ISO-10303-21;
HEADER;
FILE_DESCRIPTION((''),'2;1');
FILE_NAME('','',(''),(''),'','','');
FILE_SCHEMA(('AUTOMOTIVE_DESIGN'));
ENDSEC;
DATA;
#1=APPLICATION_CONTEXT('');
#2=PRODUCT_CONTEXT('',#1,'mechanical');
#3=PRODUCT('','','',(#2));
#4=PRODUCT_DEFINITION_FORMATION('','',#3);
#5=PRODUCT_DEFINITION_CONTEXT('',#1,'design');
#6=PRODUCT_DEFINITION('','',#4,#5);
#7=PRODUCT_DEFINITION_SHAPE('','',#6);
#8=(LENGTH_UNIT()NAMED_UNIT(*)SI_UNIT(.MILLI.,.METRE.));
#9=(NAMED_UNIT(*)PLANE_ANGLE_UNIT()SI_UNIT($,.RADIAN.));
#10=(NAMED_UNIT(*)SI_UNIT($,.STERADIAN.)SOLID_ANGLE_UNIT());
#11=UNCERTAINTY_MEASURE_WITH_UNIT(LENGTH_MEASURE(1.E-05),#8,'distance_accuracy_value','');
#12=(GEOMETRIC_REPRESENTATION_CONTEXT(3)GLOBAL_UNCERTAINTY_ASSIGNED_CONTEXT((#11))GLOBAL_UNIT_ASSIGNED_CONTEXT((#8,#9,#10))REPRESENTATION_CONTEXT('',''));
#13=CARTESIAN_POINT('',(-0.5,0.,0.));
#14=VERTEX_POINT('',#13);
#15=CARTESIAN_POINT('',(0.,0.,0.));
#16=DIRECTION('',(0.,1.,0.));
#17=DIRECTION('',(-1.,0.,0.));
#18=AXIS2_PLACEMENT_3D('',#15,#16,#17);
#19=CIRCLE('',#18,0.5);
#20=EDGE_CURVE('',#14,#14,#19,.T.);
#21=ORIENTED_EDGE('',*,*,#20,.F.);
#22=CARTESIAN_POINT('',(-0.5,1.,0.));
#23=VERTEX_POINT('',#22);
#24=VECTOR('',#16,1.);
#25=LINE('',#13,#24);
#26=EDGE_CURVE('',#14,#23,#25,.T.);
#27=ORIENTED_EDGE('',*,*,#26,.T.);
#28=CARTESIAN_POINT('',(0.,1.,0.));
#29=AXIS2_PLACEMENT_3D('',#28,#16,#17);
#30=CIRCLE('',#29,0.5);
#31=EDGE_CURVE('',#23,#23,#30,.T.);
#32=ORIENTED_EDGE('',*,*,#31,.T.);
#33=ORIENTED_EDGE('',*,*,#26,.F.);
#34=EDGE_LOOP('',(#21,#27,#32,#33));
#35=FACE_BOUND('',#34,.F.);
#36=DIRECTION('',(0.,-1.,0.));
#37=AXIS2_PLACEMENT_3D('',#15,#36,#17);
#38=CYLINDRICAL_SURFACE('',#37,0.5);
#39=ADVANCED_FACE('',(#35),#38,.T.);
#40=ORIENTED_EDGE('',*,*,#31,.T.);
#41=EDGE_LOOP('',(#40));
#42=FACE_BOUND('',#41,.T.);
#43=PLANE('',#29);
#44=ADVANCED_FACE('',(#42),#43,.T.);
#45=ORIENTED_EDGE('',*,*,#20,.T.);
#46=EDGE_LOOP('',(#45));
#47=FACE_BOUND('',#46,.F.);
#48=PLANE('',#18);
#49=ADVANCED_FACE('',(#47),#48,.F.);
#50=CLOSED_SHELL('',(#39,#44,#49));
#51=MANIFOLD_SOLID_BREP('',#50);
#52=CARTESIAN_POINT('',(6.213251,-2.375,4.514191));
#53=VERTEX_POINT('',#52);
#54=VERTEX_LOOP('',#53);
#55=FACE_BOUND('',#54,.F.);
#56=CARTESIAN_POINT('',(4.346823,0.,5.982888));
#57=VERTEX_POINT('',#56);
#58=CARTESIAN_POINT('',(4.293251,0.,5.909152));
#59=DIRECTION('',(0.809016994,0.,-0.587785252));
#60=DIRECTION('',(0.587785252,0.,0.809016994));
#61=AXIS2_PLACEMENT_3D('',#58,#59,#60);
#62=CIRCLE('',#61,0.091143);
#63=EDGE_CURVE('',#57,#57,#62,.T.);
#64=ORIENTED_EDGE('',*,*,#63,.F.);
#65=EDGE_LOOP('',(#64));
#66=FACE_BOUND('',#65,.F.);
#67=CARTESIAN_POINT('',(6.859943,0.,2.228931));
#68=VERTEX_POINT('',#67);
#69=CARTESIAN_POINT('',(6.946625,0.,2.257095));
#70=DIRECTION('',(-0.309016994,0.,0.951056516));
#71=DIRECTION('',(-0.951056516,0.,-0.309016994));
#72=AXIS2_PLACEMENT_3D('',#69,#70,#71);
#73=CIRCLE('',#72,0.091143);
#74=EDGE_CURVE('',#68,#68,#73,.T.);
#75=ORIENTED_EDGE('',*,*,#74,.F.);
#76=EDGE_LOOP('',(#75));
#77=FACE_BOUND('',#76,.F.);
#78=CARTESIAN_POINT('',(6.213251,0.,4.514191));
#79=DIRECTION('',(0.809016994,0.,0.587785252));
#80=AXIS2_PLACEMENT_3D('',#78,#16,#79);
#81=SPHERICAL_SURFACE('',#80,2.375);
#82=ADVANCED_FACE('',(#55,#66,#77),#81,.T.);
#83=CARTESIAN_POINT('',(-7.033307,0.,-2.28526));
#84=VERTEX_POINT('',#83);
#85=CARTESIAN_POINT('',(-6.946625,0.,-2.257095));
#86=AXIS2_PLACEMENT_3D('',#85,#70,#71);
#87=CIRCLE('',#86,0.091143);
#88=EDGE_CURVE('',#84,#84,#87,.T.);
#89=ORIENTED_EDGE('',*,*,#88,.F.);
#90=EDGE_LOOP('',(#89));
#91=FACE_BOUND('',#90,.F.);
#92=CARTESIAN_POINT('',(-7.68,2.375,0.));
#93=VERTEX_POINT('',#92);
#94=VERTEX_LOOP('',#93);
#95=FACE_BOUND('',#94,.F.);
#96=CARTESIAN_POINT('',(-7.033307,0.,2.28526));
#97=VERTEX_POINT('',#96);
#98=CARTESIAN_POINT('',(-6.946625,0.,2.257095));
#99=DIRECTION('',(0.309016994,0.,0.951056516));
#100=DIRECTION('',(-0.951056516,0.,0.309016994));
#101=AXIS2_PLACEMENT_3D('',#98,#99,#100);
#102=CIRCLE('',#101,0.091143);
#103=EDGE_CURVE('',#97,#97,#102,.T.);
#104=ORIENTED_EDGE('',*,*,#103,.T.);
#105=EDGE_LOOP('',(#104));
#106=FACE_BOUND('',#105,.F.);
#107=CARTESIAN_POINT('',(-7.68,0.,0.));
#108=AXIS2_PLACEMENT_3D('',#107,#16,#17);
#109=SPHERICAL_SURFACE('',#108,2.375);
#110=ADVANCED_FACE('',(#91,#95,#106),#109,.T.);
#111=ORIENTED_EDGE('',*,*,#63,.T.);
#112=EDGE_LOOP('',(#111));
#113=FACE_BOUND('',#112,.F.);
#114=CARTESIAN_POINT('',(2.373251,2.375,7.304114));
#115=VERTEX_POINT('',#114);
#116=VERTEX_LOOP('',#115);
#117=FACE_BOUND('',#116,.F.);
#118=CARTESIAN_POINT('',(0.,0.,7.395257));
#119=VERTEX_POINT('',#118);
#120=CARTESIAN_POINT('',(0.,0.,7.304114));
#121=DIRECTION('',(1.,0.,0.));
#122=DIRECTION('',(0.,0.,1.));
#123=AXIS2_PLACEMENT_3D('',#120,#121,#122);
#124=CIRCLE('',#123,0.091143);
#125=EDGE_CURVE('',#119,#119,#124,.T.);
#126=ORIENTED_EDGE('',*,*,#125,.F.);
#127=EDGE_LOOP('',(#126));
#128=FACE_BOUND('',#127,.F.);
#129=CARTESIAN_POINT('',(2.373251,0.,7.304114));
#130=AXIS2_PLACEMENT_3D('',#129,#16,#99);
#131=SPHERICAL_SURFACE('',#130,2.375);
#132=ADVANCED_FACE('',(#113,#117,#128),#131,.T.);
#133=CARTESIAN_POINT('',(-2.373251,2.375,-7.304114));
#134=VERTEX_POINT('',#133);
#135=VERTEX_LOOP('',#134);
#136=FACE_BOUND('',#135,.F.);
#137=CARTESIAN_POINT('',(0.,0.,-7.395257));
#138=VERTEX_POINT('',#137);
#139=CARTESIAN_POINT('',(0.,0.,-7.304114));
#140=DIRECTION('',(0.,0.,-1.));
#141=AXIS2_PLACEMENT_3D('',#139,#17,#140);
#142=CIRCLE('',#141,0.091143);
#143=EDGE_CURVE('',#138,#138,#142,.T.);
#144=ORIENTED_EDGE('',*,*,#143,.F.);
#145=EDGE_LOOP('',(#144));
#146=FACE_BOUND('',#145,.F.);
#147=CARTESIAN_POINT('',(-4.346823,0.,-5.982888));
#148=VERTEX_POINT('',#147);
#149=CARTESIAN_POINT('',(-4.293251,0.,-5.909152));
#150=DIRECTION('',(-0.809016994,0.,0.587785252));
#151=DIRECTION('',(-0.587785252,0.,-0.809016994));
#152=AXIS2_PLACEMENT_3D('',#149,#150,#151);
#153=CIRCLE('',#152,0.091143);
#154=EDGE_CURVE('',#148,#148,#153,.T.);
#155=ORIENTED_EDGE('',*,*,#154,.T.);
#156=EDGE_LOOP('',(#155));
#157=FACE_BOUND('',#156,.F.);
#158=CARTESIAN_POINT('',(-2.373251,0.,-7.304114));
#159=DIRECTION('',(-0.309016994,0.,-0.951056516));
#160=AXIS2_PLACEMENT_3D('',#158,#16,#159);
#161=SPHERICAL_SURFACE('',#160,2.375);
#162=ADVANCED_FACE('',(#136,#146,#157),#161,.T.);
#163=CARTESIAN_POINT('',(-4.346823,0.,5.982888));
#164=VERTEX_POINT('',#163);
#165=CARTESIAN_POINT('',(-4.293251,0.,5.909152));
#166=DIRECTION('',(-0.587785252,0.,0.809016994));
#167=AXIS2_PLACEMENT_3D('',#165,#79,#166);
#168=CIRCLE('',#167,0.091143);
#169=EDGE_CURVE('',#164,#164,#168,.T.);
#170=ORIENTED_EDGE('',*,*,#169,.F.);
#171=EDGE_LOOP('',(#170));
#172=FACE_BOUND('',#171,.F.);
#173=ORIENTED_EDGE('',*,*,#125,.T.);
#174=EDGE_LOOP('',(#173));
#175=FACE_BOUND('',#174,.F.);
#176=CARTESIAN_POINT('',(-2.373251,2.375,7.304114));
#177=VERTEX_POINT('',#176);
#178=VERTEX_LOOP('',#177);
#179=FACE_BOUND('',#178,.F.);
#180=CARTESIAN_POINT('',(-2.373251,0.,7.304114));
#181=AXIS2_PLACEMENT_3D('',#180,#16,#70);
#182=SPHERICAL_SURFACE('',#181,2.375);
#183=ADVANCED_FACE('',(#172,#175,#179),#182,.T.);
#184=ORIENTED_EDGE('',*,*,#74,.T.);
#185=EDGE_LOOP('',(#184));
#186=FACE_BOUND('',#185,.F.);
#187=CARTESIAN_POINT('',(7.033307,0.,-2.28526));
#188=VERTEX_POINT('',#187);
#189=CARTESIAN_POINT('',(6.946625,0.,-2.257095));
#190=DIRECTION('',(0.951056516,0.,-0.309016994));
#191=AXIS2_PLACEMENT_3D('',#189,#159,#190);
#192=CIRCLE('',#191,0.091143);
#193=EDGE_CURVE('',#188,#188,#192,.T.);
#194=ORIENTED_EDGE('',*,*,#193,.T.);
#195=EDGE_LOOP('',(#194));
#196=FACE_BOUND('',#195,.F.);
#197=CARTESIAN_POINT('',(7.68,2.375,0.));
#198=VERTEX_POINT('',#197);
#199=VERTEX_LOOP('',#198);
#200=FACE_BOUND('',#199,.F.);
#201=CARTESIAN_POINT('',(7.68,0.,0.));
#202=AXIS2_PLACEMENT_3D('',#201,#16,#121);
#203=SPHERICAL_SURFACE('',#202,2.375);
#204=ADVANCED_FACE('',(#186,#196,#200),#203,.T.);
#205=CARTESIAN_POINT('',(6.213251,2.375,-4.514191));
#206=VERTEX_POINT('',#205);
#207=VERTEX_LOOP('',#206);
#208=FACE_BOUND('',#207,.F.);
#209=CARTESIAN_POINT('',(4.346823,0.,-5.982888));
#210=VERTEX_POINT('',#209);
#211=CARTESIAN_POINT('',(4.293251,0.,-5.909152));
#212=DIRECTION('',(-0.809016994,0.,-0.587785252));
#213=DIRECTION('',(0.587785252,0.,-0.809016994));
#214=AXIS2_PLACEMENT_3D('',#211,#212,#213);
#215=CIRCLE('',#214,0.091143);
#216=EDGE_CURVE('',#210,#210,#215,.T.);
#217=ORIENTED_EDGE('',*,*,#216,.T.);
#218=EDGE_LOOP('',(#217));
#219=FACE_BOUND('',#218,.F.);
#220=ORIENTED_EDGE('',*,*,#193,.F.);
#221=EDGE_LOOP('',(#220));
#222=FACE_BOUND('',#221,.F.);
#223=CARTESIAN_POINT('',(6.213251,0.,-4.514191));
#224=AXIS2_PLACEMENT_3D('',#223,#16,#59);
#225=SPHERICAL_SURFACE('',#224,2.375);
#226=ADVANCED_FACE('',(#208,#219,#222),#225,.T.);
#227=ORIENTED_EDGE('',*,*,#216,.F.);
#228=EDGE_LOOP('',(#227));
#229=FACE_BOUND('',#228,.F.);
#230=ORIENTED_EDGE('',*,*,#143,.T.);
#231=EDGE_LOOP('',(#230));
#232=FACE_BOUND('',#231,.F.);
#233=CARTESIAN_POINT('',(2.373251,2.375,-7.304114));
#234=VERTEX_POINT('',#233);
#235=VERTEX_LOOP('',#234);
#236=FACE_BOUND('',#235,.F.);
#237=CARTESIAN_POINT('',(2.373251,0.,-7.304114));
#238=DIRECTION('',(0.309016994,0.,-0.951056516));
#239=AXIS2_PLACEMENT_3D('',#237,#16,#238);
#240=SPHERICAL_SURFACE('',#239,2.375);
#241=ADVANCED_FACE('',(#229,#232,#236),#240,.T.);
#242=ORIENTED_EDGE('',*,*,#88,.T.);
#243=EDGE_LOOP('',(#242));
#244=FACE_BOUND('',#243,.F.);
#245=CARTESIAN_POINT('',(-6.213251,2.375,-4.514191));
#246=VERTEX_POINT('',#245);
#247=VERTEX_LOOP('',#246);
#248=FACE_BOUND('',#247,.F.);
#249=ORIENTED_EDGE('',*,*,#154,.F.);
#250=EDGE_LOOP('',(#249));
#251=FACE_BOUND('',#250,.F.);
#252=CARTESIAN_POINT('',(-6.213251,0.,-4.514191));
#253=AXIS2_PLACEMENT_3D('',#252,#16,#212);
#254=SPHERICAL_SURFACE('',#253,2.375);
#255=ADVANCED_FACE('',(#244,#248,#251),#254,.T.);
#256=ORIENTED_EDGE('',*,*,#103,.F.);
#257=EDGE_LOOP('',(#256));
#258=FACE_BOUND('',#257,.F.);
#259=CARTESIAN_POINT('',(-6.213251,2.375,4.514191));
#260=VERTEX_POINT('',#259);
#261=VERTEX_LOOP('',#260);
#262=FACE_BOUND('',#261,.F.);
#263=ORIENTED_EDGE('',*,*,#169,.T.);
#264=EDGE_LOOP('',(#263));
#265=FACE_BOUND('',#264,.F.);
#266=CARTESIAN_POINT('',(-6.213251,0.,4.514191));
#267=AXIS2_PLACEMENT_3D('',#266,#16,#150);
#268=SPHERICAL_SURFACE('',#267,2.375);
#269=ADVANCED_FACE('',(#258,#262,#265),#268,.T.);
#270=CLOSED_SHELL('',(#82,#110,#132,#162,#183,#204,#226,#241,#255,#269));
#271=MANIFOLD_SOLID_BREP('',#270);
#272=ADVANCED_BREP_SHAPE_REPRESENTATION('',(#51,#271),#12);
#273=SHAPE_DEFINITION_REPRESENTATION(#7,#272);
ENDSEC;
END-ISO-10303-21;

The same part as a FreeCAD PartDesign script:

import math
import FreeCAD as App
import Part
import Sketcher
from FreeCAD import Vector
Q = App.Units.Quantity

doc = App.newDocument("Part")
body = doc.addObject("PartDesign::Body", "Body")
body.AllowCompound = True

# Sketch on XY plane
sketch1 = body.newObject("Sketcher::SketchObject", "Sketch")
sketch1.AttachmentSupport = (doc.getObject("XY_Plane"), [""])
sketch1.MapMode = "FlatFace"
sketch1.addGeometry(Part.ArcOfCircle(Part.Circle(Vector(7.68, 0, 0), Vector(0, 0, 1), 2.375), math.radians(-90), math.radians(90)), False)
sketch1.addGeometry(Part.LineSegment(Vector(7.68, 2.375, 0), Vector(7.68, -2.375, 0)), False)
sketch1.addGeometry(Part.LineSegment(Vector(7.68, 2.375, 0), Vector(7.68, -2.375, 0)), True)  # axis
sketch1.addConstraint(Sketcher.Constraint("Coincident", 0, 1, 1, 2))
sketch1.addConstraint(Sketcher.Constraint("Coincident", 1, 1, 0, 2))
sketch1.addConstraint(Sketcher.Constraint("Vertical", 1))
sketch1.addConstraint(Sketcher.Constraint("Vertical", 2))
sketch1.addConstraint(Sketcher.Constraint("Coincident", 2, 1, 1, 1))
sketch1.addConstraint(Sketcher.Constraint("PointOnObject", 0, 3, -1))
sketch1.addConstraint(Sketcher.Constraint("Equal", 1, 2))
sketch1.addConstraint(Sketcher.Constraint("Radius", 0, Q("2.375 mm")))
sketch1.addConstraint(Sketcher.Constraint("DistanceX", -1, 1, 0, 3, Q("7.68 mm")))
sketch1.addConstraint(Sketcher.Constraint("DistanceX", -1, 1, 0, 1, Q("7.68 mm")))
revolution = body.newObject("PartDesign::Revolution", "Revolution")
revolution.Profile = sketch1
revolution.ReferenceAxis = (sketch1, ["Axis0"])
revolution.Angle = 360
doc.recompute()

polarpattern = body.newObject("PartDesign::PolarPattern", "PolarPattern")
polarpattern.Originals = [revolution]
polarpattern.Axis = (doc.getObject("Y_Axis"), [""])
polarpattern.Angle = 360
polarpattern.Occurrences = 10
body.Tip = polarpattern

# Sketch on XZ plane
sketch2 = body.newObject("Sketcher::SketchObject", "Sketch001")
sketch2.AttachmentSupport = (doc.getObject("XZ_Plane"), [""])
sketch2.MapMode = "FlatFace"
sketch2.addGeometry(Part.Circle(Vector(0, 0, 0), Vector(0, 0, 1), 0.5), False)
sketch2.addConstraint(Sketcher.Constraint("Coincident", 0, 3, -1, 1))
sketch2.addConstraint(Sketcher.Constraint("Diameter", 0, Q("1 mm")))
pad1 = body.newObject("PartDesign::Pad", "Pad")
pad1.Profile = sketch2
pad1.Length = 1
pad1.Reversed = True

doc.recompute()
